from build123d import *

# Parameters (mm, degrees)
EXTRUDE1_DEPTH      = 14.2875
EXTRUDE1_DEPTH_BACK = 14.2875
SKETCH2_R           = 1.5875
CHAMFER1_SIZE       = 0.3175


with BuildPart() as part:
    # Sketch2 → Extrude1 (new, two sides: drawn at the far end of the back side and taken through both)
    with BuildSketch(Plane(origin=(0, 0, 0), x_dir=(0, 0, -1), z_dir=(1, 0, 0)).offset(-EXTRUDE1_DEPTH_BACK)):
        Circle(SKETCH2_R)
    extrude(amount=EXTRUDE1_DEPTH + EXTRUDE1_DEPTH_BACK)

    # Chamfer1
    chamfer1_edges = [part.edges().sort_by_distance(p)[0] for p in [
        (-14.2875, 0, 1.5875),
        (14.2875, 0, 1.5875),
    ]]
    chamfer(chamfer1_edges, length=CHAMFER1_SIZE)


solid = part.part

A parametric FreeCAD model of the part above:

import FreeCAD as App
import Part
import Sketcher
Q = App.Units.Quantity


def edges_at(feature, points):
    """Names of the edges that pass closest to the given points."""
    edges = feature.Shape.Edges
    near = lambda p: min(range(len(edges)), key=lambda i: edges[i].distToShape(Part.Vertex(*p))[0])
    return sorted({f"Edge{near(p) + 1}" for p in points})

doc = App.newDocument("Part")
body = doc.addObject("PartDesign::Body", "Body")

# Sketch on YZ plane
sketch1 = body.newObject("Sketcher::SketchObject", "Sketch")
sketch1.AttachmentSupport = (doc.getObject("YZ_Plane"), [""])
sketch1.MapMode = "FlatFace"
sketch1.addGeometry(Part.Circle(App.Vector(0, 0, 0), App.Vector(0, 0, 1), 1.5875), False)
sketch1.addConstraint(Sketcher.Constraint("Coincident", 0, 3, -1, 1))
sketch1.addConstraint(Sketcher.Constraint("Diameter", 0, Q("0.125 in")))
pad1 = body.newObject("PartDesign::Pad", "Pad")
pad1.Profile = sketch1
pad1.Type = "TwoLengths"
pad1.Length = Q("0.5625 in")
pad1.Length2 = Q("0.5625 in")
doc.recompute()

chamfer = body.newObject("PartDesign::Chamfer", "Chamfer")
chamfer.Base = (pad1, edges_at(pad1, [(-14.287, 0, 1.587), (14.287, 0, 1.587)]))
chamfer.Size = Q("0.0125 in")

doc.recompute()
